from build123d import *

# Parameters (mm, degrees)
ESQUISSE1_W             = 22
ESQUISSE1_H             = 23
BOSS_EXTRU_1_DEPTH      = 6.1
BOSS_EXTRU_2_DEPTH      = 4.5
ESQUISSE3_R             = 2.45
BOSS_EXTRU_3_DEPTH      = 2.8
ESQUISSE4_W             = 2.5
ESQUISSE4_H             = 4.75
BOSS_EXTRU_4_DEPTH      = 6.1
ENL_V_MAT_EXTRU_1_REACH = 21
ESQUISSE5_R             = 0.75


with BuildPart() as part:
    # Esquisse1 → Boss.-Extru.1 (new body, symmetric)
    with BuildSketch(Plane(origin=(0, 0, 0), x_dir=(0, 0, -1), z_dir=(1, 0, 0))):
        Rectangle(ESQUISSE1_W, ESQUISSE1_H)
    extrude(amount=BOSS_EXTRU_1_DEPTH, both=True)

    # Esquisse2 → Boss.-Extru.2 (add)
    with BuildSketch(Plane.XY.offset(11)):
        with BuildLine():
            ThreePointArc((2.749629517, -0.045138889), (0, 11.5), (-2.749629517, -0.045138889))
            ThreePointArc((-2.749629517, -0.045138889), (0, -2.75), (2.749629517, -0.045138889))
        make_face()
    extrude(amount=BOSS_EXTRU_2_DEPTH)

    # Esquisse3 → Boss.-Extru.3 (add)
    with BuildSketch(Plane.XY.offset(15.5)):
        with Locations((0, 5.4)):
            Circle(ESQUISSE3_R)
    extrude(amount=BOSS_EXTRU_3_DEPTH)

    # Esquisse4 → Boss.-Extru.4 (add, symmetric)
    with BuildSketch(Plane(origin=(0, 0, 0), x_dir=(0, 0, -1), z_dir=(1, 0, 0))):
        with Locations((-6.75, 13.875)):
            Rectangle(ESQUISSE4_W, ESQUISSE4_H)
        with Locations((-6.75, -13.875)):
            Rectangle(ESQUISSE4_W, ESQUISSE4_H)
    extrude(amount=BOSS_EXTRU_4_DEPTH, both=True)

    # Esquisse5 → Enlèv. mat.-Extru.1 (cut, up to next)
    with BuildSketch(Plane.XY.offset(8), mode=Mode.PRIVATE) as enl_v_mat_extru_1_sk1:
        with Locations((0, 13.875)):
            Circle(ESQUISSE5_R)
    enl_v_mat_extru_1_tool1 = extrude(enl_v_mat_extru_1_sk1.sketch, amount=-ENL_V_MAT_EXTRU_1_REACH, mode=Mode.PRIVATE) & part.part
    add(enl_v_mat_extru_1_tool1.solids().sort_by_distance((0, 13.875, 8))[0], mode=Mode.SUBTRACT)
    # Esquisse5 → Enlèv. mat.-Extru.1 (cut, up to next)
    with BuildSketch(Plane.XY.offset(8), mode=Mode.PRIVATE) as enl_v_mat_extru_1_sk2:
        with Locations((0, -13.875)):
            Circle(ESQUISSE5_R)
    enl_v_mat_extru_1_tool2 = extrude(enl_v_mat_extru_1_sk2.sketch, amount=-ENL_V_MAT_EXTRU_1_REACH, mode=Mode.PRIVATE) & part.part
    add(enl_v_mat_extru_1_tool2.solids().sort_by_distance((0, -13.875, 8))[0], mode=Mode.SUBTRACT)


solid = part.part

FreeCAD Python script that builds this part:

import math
import FreeCAD as App
import Part
import Sketcher
from FreeCAD import Vector


def add_polygon(sketch, points):
    """Adds a closed chain of lines whose ends are joined by coincident constraints."""
    first, n = sketch.GeometryCount, len(points)
    for a, b in zip(points, points[1:] + points[:1]):
        sketch.addGeometry(Part.LineSegment(App.Vector(*a, 0), App.Vector(*b, 0)), False)
    for i in range(n):
        sketch.addConstraint(Sketcher.Constraint("Coincident", first + i, 2, first + (i + 1) % n, 1))

doc = App.newDocument("Part")
body = doc.addObject("PartDesign::Body", "Body")

# Sketch on YZ plane
sketch1 = body.newObject("Sketcher::SketchObject", "Sketch")
sketch1.AttachmentSupport = (doc.getObject("YZ_Plane"), [""])
sketch1.MapMode = "FlatFace"
add_polygon(sketch1, [(12, 11), (-12, 11), (-12, -11), (12, -11)])  # lines 0-3
sketch1.addConstraint([
    Sketcher.Constraint("Horizontal", 0),
    Sketcher.Constraint("Vertical", 1),
    Sketcher.Constraint("Horizontal", 2),
    Sketcher.Constraint("Vertical", 3),
    Sketcher.Constraint("Symmetric", 0, 2, 2, 2, -1, 1),
    Sketcher.Constraint("DistanceX", 0, 2, 0, 1, 23.0),
    Sketcher.Constraint("DistanceY", 1, 2, 1, 1, 22.0),
])
pad1 = body.newObject("PartDesign::Pad", "Pad")
pad1.Profile = sketch1
pad1.Length = 12.2
pad1.Midplane = True

# Sketch on XY plane
sketch2 = body.newObject("Sketcher::SketchObject", "Sketch001")
sketch2.AttachmentSupport = (doc.getObject("XY_Plane"), [""])
sketch2.MapMode = "FlatFace"
sketch2.AttachmentOffset = App.Placement(Vector(0, 0, 11), App.Rotation())
sketch2.addGeometry([
    Part.ArcOfCircle(Part.Circle(Vector(0, 5.4, 0), Vector(0, 0, 1), 6.1), math.radians(-63), math.radians(243)),
    Part.ArcOfCircle(Part.Circle(Vector(0, 0, 0), Vector(0, 0, 1), 2.8), math.radians(-179), math.radians(-1)),
], False)
sketch2.addConstraint([
    Sketcher.Constraint("Coincident", 0, 1, 1, 2),
    Sketcher.Constraint("Coincident", 1, 1, 0, 2),
    Sketcher.Constraint("Coincident", 1, 3, -1, 1),
    Sketcher.Constraint("PointOnObject", 0, 3, -2),
    Sketcher.Constraint("Radius", 0, 6.1),
    Sketcher.Constraint("Radius", 1, 2.75),
    Sketcher.Constraint("DistanceY", -1, 1, 0, 3, 5.4),
])
pad2 = body.newObject("PartDesign::Pad", "Pad001")
pad2.Profile = sketch2
pad2.Length = 4.5

# Sketch on XY plane
sketch3 = body.newObject("Sketcher::SketchObject", "Sketch002")
sketch3.AttachmentSupport = (doc.getObject("XY_Plane"), [""])
sketch3.MapMode = "FlatFace"
sketch3.AttachmentOffset = App.Placement(Vector(0, 0, 15.5), App.Rotation())
sketch3.addGeometry(Part.Circle(Vector(0, 5.4, 0), Vector(0, 0, 1), 2.5), False)
sketch3.addConstraint([
    Sketcher.Constraint("PointOnObject", 0, 3, -2),
    Sketcher.Constraint("Diameter", 0, 4.9),
    Sketcher.Constraint("DistanceY", -1, 1, 0, 3, 5.4),
])
pad3 = body.newObject("PartDesign::Pad", "Pad002")
pad3.Profile = sketch3
pad3.Length = 2.8

# Sketch on YZ plane
sketch4 = body.newObject("Sketcher::SketchObject", "Sketch003")
sketch4.AttachmentSupport = (doc.getObject("YZ_Plane"), [""])
sketch4.MapMode = "FlatFace"
add_polygon(sketch4, [(16.2, 8), (11.5, 8), (11.5, 5.5), (16.2, 5.5)])  # lines 0-3
add_polygon(sketch4, [(-11.5, 8), (-16.2, 8), (-16.2, 5.5), (-11.5, 5.5)])  # lines 4-7
sketch4.addConstraint([
    Sketcher.Constraint("Horizontal", 0),
    Sketcher.Constraint("Vertical", 1),
    Sketcher.Constraint("Horizontal", 2),
    Sketcher.Constraint("Vertical", 3),
    Sketcher.Constraint("Horizontal", 4),
    Sketcher.Constraint("Vertical", 5),
    Sketcher.Constraint("Horizontal", 6),
    Sketcher.Constraint("Vertical", 7),
    Sketcher.Constraint("Symmetric", 3, 2, 4, 2, -2),
    Sketcher.Constraint("Symmetric", 1, 2, 6, 2, -2),
    Sketcher.Constraint("DistanceY", 1, 2, 1, 1, 2.5),
    Sketcher.Constraint("DistanceY", -1, 1, 0, 2, 8.0),
    Sketcher.Constraint("DistanceX", 6, 2, 1, 2, 23.0),
    Sketcher.Constraint("DistanceX", 0, 2, 0, 1, 4.75),
])
pad4 = body.newObject("PartDesign::Pad", "Pad003")
pad4.Profile = sketch4
pad4.Length = 12.2
pad4.Midplane = True

# Sketch on XY plane
sketch5 = body.newObject("Sketcher::SketchObject", "Sketch004")
sketch5.AttachmentSupport = (doc.getObject("XY_Plane"), [""])
sketch5.MapMode = "FlatFace"
sketch5.AttachmentOffset = App.Placement(Vector(0, 0, 8), App.Rotation())
sketch5.addGeometry(Part.Circle(Vector(0, 13.9, 0), Vector(0, 0, 1), 0.8), False)
sketch5.addConstraint([
    Sketcher.Constraint("PointOnObject", 0, 3, -2),
    Sketcher.Constraint("Diameter", 0, 1.5),
    Sketcher.Constraint("DistanceY", -1, 1, 0, 3, 13.875),
])
pocket1 = body.newObject("PartDesign::Pocket", "Pocket")
pocket1.Profile = sketch5
pocket1.Type = "UpToFirst"

# Sketch on XY plane
sketch6 = body.newObject("Sketcher::SketchObject", "Sketch005")
sketch6.AttachmentSupport = (doc.getObject("XY_Plane"), [""])
sketch6.MapMode = "FlatFace"
sketch6.AttachmentOffset = App.Placement(Vector(0, 0, 8), App.Rotation())
sketch6.addGeometry(Part.Circle(Vector(0, -13.9, 0), Vector(0, 0, 1), 0.8), False)
sketch6.addConstraint([
    Sketcher.Constraint("PointOnObject", 0, 3, -2),
    Sketcher.Constraint("Diameter", 0, 1.5),
    Sketcher.Constraint("DistanceY", 0, 3, -1, 1, 13.875),
])
pocket2 = body.newObject("PartDesign::Pocket", "Pocket001")
pocket2.Profile = sketch6
pocket2.Type = "UpToFirst"

doc.recompute()
